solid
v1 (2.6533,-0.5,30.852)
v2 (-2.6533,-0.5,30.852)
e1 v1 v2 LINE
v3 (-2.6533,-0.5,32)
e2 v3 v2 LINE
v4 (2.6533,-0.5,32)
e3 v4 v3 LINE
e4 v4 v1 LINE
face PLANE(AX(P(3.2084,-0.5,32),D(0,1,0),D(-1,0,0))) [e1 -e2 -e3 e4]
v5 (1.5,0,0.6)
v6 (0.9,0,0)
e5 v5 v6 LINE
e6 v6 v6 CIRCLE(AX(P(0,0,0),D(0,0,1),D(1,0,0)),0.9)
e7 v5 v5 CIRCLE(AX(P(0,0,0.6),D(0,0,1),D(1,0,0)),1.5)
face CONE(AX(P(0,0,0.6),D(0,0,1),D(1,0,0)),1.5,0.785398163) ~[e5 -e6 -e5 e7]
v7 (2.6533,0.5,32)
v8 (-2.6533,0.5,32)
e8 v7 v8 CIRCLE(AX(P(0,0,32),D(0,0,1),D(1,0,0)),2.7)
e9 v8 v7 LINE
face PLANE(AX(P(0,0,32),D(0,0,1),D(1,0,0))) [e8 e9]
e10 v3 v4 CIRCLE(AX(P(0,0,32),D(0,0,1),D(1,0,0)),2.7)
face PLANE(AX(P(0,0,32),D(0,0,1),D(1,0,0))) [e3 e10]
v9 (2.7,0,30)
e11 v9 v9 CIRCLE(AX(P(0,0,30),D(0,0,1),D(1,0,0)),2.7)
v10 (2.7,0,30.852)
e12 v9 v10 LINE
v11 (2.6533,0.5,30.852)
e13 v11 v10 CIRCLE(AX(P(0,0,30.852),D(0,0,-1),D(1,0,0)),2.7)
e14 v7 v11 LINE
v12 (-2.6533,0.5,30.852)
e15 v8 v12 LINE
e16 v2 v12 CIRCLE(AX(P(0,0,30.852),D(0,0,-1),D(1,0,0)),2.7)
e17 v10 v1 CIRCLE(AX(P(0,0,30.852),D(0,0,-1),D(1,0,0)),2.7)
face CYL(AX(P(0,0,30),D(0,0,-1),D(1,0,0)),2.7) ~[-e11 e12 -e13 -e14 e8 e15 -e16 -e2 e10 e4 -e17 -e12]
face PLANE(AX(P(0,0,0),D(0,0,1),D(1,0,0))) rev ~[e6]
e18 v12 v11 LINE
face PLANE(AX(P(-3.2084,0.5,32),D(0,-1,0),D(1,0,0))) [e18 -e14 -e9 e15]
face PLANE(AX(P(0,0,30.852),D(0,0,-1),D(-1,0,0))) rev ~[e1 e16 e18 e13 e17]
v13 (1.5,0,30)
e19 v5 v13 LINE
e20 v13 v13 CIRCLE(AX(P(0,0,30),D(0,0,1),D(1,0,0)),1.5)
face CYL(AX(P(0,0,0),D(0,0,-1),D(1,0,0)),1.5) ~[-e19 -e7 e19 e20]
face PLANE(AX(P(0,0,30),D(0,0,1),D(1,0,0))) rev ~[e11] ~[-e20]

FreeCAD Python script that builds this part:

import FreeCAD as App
import Part
import Sketcher

V = App.Vector
Q = App.Units.Quantity


def edges_at(feature, points):
    """Names of the edges that pass closest to the given points."""
    edges = feature.Shape.Edges
    near = lambda p: min(range(len(edges)), key=lambda i: edges[i].distToShape(Part.Vertex(*p))[0])
    return sorted({f"Edge{near(p) + 1}" for p in points})


def add_polygon(sketch, points):
    """Adds a closed chain of lines whose ends are joined by coincident constraints."""
    first, n = sketch.GeometryCount, len(points)
    for a, b in zip(points, points[1:] + points[:1]):
        sketch.addGeometry(Part.LineSegment(App.Vector(*a, 0), App.Vector(*b, 0)), False)
    for i in range(n):
        sketch.addConstraint(Sketcher.Constraint("Coincident", first + i, 2, first + (i + 1) % n, 1))

doc = App.newDocument("Part")
body = doc.addObject("PartDesign::Body", "Body")

sketch1 = body.newObject("Sketcher::SketchObject", "Sketch")
sketch1.AttachmentSupport = (doc.getObject("XY_Plane"), [""])
sketch1.MapMode = "FlatFace"
sketch1.addGeometry(Part.Circle(V(0, 0, 0), V(0, 0, 1), 1.5), False)
sketch1.addConstraint([
    Sketcher.Constraint("Coincident", 0, 3, -1, 1),
    Sketcher.Constraint("Diameter", 0, Q("3 mm")),
])
pad1 = body.newObject("PartDesign::Pad", "Pad")
pad1.Profile = sketch1
pad1.Length = 30
doc.recompute()

chamfer = body.newObject("PartDesign::Chamfer", "Chamfer")
chamfer.Base = (pad1, edges_at(pad1, [(-1.5, 0, 0)]))
chamfer.Size = 0.6

sketch2 = body.newObject("Sketcher::SketchObject", "Sketch001")
sketch2.AttachmentSupport = (doc.getObject("XY_Plane"), [""])
sketch2.MapMode = "FlatFace"
sketch2.AttachmentOffset = App.Placement(V(0, 0, 30), App.Rotation())
sketch2.addGeometry(Part.Circle(V(0, 0, 0), V(0, 0, 1), 2.7), False)
sketch2.addConstraint([
    Sketcher.Constraint("Coincident", 0, 3, -1, 1),
    Sketcher.Constraint("Diameter", 0, Q("5.4 mm")),
])
pad2 = body.newObject("PartDesign::Pad", "Pad001")
pad2.Profile = sketch2
pad2.Length = 2

sketch3 = body.newObject("Sketcher::SketchObject", "Sketch002")
sketch3.AttachmentSupport = (doc.getObject("XY_Plane"), [""])
sketch3.MapMode = "FlatFace"
sketch3.AttachmentOffset = App.Placement(V(0, 0, 32), App.Rotation())
add_polygon(sketch3, [(3.2, -0.5), (3.2, 0.5), (-3.2, 0.5), (-3.2, -0.5)])
sketch3.addConstraint([
    Sketcher.Constraint("Vertical", 0),
    Sketcher.Constraint("Horizontal", 1),
    Sketcher.Constraint("Vertical", 2),
    Sketcher.Constraint("Horizontal", 3),
    Sketcher.Constraint("Symmetric", 0, 2, 2, 2, -1, 1),
    Sketcher.Constraint("DistanceY", 0, 1, 0, 2, Q("1 mm")),
    Sketcher.Constraint("DistanceX", 1, 2, 1, 1, Q("6.4168 mm")),
])
pocket1 = body.newObject("PartDesign::Pocket", "Pocket")
pocket1.Profile = sketch3
pocket1.Length = 1.148

doc.recompute()
